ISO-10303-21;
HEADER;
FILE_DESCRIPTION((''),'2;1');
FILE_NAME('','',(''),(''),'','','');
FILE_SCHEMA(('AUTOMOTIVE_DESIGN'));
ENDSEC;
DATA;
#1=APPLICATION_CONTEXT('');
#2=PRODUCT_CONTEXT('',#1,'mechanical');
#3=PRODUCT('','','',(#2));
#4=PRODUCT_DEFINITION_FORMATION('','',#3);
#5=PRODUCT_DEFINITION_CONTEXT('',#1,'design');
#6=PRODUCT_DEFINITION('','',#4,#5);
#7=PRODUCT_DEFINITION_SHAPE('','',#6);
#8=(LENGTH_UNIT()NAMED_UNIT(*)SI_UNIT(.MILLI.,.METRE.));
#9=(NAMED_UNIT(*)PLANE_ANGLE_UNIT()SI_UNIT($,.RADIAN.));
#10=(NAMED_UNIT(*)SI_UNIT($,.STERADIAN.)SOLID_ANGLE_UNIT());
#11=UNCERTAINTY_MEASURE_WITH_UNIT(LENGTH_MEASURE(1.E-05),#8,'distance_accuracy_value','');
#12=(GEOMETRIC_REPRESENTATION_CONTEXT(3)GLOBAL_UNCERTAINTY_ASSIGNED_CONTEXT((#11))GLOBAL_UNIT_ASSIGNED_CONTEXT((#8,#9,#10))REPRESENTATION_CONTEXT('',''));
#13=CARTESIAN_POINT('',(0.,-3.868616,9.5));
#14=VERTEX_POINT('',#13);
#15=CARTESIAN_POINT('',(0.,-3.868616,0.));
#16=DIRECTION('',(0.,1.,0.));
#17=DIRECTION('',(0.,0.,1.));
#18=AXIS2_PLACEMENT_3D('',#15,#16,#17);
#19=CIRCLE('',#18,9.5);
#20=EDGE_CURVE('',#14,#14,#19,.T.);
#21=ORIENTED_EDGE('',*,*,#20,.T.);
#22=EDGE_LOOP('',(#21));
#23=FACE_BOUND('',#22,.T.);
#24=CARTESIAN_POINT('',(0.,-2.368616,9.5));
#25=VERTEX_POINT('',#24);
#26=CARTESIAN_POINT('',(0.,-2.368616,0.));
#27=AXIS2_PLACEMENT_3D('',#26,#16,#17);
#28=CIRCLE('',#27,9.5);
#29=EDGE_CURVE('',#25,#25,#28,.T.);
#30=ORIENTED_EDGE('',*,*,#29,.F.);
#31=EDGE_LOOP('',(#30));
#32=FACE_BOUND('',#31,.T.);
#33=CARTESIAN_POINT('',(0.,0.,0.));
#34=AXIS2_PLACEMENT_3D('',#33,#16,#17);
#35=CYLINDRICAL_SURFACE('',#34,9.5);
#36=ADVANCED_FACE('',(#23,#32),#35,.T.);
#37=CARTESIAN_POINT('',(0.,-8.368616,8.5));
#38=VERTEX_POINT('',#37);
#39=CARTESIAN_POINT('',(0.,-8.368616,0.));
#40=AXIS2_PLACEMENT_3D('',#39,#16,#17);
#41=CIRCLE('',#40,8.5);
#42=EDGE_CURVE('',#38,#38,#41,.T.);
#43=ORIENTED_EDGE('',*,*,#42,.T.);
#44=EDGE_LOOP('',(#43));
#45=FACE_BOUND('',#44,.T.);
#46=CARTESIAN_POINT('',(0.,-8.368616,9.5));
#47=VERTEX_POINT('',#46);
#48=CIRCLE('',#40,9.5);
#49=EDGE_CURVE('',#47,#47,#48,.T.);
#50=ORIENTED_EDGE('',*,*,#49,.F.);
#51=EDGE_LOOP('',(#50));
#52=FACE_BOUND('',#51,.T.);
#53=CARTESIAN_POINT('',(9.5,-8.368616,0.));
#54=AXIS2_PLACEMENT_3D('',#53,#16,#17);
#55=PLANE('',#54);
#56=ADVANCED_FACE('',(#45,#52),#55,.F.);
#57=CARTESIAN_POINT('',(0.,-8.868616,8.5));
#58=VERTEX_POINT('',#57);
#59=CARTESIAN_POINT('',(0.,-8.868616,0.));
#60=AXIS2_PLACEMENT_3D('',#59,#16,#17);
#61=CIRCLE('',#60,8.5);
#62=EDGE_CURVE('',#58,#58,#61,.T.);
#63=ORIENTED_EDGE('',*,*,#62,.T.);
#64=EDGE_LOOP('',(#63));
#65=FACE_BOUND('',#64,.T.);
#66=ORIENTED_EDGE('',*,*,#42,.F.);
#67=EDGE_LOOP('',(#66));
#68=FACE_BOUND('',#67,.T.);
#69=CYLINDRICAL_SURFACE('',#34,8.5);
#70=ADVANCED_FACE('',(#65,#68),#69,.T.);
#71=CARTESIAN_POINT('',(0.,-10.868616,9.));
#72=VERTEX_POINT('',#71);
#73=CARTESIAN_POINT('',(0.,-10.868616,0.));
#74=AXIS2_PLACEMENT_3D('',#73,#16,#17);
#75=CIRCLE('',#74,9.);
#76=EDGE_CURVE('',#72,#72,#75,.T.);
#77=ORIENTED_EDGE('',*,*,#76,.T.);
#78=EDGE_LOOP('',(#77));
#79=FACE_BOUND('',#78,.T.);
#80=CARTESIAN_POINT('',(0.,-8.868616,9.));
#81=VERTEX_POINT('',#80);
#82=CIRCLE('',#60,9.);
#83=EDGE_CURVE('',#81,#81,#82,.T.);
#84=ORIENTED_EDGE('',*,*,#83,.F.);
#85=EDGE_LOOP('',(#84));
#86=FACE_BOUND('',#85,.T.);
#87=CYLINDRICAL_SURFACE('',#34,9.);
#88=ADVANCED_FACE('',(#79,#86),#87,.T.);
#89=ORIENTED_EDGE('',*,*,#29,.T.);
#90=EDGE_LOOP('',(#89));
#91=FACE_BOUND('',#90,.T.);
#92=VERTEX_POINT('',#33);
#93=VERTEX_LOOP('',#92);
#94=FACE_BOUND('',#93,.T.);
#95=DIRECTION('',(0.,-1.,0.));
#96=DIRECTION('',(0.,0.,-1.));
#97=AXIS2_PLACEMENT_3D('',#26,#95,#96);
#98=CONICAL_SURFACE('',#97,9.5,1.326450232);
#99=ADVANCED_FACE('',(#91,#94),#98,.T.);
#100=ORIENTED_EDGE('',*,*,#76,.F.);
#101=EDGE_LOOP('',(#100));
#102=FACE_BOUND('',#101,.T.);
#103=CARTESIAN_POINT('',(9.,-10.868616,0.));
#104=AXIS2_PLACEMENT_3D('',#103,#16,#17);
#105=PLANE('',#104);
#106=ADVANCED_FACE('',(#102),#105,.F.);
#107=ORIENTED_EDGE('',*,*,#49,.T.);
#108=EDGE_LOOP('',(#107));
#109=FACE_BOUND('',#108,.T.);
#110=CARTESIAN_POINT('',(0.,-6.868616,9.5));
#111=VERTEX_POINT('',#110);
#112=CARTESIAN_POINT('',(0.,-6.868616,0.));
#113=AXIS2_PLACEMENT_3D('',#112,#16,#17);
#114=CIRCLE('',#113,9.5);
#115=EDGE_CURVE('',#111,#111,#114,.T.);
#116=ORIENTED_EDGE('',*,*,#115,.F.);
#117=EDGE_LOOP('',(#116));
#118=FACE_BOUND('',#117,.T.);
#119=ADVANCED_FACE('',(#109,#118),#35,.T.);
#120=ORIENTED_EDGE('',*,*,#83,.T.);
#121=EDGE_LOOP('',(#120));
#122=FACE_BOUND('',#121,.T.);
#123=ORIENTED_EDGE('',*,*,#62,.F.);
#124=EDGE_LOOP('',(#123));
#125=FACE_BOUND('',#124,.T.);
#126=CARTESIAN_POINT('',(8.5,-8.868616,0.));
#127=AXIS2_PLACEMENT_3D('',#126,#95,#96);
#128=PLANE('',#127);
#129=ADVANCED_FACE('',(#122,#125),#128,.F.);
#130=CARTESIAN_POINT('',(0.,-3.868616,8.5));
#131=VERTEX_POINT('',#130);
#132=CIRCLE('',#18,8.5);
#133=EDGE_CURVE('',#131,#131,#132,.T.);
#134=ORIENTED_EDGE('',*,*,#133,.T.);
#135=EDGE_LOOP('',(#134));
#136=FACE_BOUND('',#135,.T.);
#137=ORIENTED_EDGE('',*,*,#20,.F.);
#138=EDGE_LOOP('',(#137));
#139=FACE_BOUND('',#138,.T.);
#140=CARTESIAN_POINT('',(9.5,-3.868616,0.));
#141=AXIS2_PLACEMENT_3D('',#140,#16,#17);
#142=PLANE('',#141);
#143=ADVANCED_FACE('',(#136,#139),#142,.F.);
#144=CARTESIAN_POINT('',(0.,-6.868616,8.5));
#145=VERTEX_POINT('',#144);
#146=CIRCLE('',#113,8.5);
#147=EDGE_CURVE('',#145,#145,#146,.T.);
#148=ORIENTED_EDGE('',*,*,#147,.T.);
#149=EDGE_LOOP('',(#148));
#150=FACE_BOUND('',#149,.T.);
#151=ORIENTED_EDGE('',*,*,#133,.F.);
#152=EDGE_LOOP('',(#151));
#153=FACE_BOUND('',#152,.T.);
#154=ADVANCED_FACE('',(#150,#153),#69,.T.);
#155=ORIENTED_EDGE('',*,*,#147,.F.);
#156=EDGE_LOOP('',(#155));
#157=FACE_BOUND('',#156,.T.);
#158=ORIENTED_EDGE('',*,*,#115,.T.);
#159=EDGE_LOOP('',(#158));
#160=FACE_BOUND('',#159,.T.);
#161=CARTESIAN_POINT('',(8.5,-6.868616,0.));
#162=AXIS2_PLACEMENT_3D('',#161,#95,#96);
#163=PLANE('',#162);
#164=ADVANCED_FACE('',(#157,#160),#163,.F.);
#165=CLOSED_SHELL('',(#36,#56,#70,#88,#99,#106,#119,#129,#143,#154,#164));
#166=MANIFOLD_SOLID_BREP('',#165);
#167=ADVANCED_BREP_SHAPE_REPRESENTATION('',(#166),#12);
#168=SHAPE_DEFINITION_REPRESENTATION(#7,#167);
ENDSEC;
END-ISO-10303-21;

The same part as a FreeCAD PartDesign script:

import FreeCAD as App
import Part
import Sketcher
Q = App.Units.Quantity


def add_polygon(sketch, points):
    """Adds a closed chain of lines whose ends are joined by coincident constraints."""
    first, n = sketch.GeometryCount, len(points)
    for a, b in zip(points, points[1:] + points[:1]):
        sketch.addGeometry(Part.LineSegment(App.Vector(*a, 0), App.Vector(*b, 0)), False)
    for i in range(n):
        sketch.addConstraint(Sketcher.Constraint("Coincident", first + i, 2, first + (i + 1) % n, 1))

doc = App.newDocument("Part")
body = doc.addObject("PartDesign::Body", "Body")

# Sketch on XY plane
sketch1 = doc.addObject("Sketcher::SketchObject", "Sketch")
body.addObject(sketch1)
sketch1.AttachmentSupport = (doc.XY_Plane, [""])
sketch1.MapMode = "FlatFace"
add_polygon(sketch1, [(9.5, -2.4), (0, 0), (0, -10.9), (9, -10.9), (9, -8.9), (8.5, -8.9), (8.5, -8.4), (9.5, -8.4), (9.5, -6.9), (8.5, -6.9), (8.5, -3.9), (9.5, -3.9)])  # lines 0-11
sketch1.addConstraint(Sketcher.Constraint("Vertical", 1))
sketch1.addConstraint(Sketcher.Constraint("Horizontal", 2))
sketch1.addConstraint(Sketcher.Constraint("Vertical", 3))
sketch1.addConstraint(Sketcher.Constraint("Horizontal", 4))
sketch1.addConstraint(Sketcher.Constraint("Vertical", 5))
sketch1.addConstraint(Sketcher.Constraint("Horizontal", 6))
sketch1.addConstraint(Sketcher.Constraint("Vertical", 7))
sketch1.addConstraint(Sketcher.Constraint("Horizontal", 8))
sketch1.addConstraint(Sketcher.Constraint("Vertical", 9))
sketch1.addConstraint(Sketcher.Constraint("Horizontal", 10))
sketch1.addConstraint(Sketcher.Constraint("Vertical", 11))
sketch1.addConstraint(Sketcher.Constraint("Coincident", 0, 2, -1, 1))
sketch1.addConstraint(Sketcher.Constraint("Vertical", 5, 2, 8, 2))
sketch1.addConstraint(Sketcher.Constraint("Vertical", 7, 2, 10, 2))
sketch1.addConstraint(Sketcher.Constraint("Equal", 4, 5))
sketch1.addConstraint(Sketcher.Constraint("Equal", 7, 11))
sketch1.addConstraint(Sketcher.Constraint("DistanceX", 2, 1, 2, 2, 9.0))
sketch1.addConstraint(Sketcher.Constraint("DistanceX", 6, 1, 6, 2, 1.0))
sketch1.addConstraint(Sketcher.Constraint("DistanceY", 3, 1, 3, 2, 2.0))
sketch1.addConstraint(Sketcher.Constraint("DistanceY", 9, 1, 9, 2, 3.0))
sketch1.addConstraint(Sketcher.Constraint("Angle", 0, Q("166 deg")))
sketch1.addConstraint(Sketcher.Constraint("DistanceX", 4, 2, 4, 1, 0.5))
sketch1.addConstraint(Sketcher.Constraint("DistanceY", 7, 1, 7, 2, 1.5))
revolution = doc.addObject("PartDesign::Revolution", "Revolution")
body.addObject(revolution)
revolution.Profile = sketch1
revolution.ReferenceAxis = (sketch1, ["V_Axis"])
revolution.Angle = 360

doc.recompute()
